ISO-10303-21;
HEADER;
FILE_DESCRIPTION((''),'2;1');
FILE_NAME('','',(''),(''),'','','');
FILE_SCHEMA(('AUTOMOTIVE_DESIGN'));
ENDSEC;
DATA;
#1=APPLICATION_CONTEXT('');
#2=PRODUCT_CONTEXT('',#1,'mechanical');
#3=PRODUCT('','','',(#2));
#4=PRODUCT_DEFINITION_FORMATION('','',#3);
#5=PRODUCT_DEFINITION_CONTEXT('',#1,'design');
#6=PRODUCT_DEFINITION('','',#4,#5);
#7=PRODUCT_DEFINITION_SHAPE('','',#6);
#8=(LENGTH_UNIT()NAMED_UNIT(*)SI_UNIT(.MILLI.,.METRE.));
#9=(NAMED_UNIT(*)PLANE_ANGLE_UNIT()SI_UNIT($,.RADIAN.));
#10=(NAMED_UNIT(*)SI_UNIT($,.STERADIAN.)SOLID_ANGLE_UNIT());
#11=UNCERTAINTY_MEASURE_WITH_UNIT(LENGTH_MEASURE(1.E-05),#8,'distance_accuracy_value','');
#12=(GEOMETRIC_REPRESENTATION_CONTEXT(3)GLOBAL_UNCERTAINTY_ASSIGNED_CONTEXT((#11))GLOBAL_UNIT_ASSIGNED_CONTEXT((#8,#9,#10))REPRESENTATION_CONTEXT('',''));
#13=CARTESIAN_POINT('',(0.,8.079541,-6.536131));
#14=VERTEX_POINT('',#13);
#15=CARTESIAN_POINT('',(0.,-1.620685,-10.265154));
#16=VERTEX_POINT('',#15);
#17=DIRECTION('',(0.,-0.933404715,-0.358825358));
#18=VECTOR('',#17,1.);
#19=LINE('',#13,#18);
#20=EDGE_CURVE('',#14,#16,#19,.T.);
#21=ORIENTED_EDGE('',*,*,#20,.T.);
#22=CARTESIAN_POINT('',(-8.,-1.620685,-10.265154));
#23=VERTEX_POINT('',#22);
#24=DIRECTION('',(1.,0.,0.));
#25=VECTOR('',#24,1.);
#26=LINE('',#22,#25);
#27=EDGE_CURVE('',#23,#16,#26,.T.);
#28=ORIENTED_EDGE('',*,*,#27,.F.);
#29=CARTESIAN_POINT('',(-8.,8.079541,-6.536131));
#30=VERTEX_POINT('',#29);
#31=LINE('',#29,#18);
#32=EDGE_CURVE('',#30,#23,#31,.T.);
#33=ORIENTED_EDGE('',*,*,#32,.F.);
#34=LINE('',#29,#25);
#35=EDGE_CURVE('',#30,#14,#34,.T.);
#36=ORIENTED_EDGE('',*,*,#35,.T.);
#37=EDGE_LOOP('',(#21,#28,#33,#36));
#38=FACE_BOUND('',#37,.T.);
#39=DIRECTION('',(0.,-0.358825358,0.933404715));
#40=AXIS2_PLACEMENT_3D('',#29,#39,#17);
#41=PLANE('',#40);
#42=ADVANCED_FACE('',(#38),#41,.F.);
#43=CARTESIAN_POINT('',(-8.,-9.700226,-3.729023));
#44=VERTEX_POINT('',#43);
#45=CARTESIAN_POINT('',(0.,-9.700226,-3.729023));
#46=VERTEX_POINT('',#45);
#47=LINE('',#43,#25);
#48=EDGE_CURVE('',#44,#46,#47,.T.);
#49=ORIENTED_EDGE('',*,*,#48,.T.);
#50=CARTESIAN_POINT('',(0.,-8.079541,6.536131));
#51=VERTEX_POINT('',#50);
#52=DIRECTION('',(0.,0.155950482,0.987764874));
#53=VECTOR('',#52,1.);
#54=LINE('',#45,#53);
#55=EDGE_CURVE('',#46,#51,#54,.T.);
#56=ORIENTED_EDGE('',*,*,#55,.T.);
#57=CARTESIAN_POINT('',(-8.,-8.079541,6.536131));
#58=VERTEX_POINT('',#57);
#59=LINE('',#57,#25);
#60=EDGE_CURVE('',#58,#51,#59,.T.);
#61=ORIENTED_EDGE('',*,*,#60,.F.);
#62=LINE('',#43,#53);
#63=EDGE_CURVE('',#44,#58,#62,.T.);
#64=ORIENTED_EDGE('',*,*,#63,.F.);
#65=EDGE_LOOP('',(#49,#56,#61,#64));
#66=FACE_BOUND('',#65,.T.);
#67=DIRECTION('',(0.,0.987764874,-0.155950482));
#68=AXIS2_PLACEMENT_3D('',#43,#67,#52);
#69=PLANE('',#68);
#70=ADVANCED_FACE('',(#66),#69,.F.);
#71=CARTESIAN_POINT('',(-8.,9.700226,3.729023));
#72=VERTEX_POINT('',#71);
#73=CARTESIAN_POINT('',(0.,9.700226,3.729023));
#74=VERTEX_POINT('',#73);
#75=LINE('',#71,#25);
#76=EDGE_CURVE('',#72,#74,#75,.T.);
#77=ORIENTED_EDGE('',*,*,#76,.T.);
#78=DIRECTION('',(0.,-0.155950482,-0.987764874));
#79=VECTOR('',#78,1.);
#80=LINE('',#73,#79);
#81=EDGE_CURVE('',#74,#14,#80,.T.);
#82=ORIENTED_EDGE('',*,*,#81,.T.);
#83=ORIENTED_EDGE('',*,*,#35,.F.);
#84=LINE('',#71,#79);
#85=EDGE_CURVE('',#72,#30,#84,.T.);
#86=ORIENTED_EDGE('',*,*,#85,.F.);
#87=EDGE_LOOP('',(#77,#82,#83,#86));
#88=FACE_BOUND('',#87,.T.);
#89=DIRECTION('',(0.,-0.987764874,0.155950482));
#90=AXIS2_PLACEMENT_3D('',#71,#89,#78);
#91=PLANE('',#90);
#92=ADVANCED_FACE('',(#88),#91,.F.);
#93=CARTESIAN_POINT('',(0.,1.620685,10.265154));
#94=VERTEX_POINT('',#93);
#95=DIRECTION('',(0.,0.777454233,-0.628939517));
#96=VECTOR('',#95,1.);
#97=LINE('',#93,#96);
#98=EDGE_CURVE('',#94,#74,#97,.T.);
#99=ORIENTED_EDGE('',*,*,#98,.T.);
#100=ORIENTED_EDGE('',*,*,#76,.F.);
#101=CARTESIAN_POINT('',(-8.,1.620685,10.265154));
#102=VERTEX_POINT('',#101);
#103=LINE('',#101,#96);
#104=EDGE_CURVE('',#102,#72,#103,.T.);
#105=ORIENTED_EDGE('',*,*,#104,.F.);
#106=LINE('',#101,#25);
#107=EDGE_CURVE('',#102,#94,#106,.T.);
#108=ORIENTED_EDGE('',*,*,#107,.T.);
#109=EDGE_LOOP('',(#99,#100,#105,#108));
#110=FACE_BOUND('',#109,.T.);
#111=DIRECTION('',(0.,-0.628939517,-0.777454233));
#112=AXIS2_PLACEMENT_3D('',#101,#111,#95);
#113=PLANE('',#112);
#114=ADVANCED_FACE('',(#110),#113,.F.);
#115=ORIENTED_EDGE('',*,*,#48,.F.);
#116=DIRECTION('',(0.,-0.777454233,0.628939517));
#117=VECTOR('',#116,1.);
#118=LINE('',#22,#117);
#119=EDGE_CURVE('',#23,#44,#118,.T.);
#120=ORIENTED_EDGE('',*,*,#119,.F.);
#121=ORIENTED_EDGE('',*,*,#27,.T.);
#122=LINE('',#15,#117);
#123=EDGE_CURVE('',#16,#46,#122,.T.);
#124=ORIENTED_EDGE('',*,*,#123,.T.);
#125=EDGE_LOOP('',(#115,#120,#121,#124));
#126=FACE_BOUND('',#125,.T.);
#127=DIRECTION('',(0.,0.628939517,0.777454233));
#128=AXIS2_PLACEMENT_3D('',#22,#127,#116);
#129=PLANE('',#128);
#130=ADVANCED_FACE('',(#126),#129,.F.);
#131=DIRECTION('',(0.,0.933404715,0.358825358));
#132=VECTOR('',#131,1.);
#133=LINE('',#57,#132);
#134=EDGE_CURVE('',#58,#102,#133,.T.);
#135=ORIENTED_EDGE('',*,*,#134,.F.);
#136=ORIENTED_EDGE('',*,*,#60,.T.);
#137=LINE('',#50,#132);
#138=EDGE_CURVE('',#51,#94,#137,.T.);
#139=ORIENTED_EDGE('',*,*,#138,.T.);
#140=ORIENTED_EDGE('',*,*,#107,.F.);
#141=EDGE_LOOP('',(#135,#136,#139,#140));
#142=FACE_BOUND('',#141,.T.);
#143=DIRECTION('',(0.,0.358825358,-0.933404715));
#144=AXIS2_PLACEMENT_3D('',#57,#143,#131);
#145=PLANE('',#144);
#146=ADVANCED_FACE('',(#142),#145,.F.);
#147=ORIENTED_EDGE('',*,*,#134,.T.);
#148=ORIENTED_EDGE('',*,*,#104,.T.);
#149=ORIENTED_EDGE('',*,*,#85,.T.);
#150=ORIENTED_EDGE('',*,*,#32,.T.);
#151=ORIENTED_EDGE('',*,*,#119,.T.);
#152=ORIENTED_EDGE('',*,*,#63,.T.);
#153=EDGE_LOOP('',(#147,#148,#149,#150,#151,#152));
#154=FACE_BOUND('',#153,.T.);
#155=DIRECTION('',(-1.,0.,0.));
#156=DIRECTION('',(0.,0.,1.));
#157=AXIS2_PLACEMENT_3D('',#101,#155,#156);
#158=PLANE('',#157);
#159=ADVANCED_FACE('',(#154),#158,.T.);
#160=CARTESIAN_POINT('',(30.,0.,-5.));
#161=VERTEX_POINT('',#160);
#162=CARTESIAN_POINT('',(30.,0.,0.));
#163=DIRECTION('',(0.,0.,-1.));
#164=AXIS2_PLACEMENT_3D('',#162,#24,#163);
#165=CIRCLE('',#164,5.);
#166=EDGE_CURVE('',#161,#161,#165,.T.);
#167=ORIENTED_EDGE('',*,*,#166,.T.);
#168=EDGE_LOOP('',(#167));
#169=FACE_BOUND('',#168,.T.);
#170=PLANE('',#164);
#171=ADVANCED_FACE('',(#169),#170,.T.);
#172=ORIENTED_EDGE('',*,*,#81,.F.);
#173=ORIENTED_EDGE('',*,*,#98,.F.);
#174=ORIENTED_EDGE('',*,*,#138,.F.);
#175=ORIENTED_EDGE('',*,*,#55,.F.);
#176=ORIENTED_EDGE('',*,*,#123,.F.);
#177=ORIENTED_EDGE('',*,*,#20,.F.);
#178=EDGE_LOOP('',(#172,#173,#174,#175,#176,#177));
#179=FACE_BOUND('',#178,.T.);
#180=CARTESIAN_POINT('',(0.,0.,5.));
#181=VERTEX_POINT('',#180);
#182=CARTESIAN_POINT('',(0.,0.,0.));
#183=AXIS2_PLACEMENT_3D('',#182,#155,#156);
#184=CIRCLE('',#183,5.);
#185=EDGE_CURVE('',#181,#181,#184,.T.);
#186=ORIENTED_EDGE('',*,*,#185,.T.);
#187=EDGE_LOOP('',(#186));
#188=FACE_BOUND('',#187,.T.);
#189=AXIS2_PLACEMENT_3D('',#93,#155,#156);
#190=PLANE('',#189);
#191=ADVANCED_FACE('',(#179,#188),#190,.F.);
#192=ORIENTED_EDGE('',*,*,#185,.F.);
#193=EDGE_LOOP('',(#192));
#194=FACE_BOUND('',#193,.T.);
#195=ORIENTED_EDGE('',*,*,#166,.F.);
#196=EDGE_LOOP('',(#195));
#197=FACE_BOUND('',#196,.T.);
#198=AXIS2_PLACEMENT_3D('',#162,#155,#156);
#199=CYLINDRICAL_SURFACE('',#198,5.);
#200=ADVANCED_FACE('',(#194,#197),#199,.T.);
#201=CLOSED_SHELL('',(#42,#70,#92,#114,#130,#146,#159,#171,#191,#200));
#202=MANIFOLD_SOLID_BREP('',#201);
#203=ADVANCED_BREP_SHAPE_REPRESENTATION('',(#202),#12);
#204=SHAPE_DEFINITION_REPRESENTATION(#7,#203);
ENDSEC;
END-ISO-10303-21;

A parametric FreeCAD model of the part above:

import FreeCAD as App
import Part
import Sketcher
from FreeCAD import Vector


def add_polygon(sketch, points):
    """Adds a closed chain of lines whose ends are joined by coincident constraints."""
    first, n = sketch.GeometryCount, len(points)
    for a, b in zip(points, points[1:] + points[:1]):
        sketch.addGeometry(Part.LineSegment(App.Vector(*a, 0), App.Vector(*b, 0)), False)
    for i in range(n):
        sketch.addConstraint(Sketcher.Constraint("Coincident", first + i, 2, first + (i + 1) % n, 1))

doc = App.newDocument("Part")
body = doc.addObject("PartDesign::Body", "Body")

sketch1 = body.newObject("Sketcher::SketchObject", "Sketch")
sketch1.AttachmentSupport = (doc.getObject("YZ_Plane"), [""])
sketch1.MapMode = "FlatFace"
sketch1.addGeometry(Part.Circle(Vector(0, 0, 0), Vector(0, 0, 1), 5), False)
sketch1.addConstraint([
    Sketcher.Constraint("Coincident", 0, 3, -1, 1),
    Sketcher.Constraint("Diameter", 0, 10.0),
])
pad1 = body.newObject("PartDesign::Pad", "Pad")
pad1.Profile = sketch1
pad1.Length = 30

sketch2 = body.newObject("Sketcher::SketchObject", "Sketch001")
sketch2.AttachmentSupport = (doc.getObject("YZ_Plane"), [""])
sketch2.MapMode = "FlatFace"
add_polygon(sketch2, [(1.620685, 10.265154), (9.700226, 3.729023), (8.079541, -6.536131), (-1.620685, -10.265154), (-9.700226, -3.729023), (-8.079541, 6.536131)])
sketch2.addConstraint([
    Sketcher.Constraint("Symmetric", 0, 2, 3, 2, -1, 1),
    Sketcher.Constraint("Symmetric", 1, 2, 4, 2, -1, 1),
    Sketcher.Constraint("Symmetric", 2, 2, 5, 2, -1, 1),
    Sketcher.Constraint("Equal", 0, 1),
    Sketcher.Constraint("Equal", 1, 2),
    Sketcher.Constraint("DistanceX", -1, 1, 1, 2, 8.079541),
    Sketcher.Constraint("DistanceY", 1, 2, -1, 1, 6.536131),
    Sketcher.Constraint("DistanceX", 2, 2, 0, 2, 11.320911),
    Sketcher.Constraint("DistanceX", 3, 2, 2, 2, 8.079541),
])
pad2 = body.newObject("PartDesign::Pad", "Pad001")
pad2.Profile = sketch2
pad2.Length = 8
pad2.Reversed = True

doc.recompute()
